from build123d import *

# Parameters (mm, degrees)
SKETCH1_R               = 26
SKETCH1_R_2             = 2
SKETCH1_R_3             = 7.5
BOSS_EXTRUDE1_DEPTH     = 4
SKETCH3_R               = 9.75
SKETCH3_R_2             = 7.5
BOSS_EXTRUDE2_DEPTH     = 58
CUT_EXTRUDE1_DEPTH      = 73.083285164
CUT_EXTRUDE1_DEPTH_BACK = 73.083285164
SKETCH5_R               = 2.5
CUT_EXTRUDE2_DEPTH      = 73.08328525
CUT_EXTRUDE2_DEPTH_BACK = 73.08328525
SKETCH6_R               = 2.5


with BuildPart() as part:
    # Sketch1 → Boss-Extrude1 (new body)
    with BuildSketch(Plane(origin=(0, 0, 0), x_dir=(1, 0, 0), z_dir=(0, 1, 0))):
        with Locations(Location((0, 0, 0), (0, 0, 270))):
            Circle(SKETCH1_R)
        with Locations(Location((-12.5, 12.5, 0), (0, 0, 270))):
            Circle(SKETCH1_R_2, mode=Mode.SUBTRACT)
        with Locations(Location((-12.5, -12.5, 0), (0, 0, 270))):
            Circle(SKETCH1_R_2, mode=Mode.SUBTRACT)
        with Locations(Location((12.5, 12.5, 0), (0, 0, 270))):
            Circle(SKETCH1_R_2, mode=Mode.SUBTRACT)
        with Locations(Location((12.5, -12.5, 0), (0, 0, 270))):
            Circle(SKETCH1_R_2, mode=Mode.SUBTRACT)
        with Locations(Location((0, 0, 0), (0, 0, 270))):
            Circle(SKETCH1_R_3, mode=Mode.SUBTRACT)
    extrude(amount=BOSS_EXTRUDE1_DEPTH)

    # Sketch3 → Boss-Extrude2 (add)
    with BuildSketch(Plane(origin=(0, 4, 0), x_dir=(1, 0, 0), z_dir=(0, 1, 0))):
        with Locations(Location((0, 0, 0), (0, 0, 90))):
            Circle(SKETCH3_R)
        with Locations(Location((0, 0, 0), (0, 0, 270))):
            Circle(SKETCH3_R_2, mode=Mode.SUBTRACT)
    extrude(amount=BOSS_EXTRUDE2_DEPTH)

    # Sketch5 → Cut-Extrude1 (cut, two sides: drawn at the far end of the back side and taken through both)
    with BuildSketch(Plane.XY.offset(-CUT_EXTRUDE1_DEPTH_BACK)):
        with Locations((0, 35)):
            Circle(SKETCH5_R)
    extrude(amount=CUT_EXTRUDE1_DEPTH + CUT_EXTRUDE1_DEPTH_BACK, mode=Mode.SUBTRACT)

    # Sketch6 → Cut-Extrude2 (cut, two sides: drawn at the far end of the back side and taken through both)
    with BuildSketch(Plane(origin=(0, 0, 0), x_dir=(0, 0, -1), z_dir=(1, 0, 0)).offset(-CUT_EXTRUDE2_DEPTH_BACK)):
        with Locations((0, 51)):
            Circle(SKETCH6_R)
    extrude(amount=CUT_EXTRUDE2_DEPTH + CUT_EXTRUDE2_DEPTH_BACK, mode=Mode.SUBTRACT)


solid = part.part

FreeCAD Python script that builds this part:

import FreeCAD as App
import Part
import Sketcher

V = App.Vector

doc = App.newDocument("Part")
body = doc.addObject("PartDesign::Body", "Body")

sketch1 = doc.addObject("Sketcher::SketchObject", "Sketch")
body.addObject(sketch1)
sketch1.AttachmentSupport = (doc.XZ_Plane, [""])
sketch1.MapMode = "FlatFace"
sketch1.addGeometry(Part.Circle(V(0, 0, 0), V(0, 0, 1), 26), False)
sketch1.addGeometry(Part.Circle(V(-12.5, -12.5, 0), V(0, 0, 1), 2), False)
sketch1.addGeometry(Part.Circle(V(-12.5, 12.5, 0), V(0, 0, 1), 2), False)
sketch1.addGeometry(Part.Circle(V(12.5, -12.5, 0), V(0, 0, 1), 2), False)
sketch1.addGeometry(Part.Circle(V(0, 0, 0), V(0, 0, 1), 7.5), False)
sketch1.addGeometry(Part.Circle(V(12.5, 12.5, 0), V(0, 0, 1), 2), False)
sketch1.addConstraint(Sketcher.Constraint("Coincident", 0, 3, -1, 1))
sketch1.addConstraint(Sketcher.Constraint("Coincident", 4, 3, -1, 1))
sketch1.addConstraint(Sketcher.Constraint("Equal", 1, 2))
sketch1.addConstraint(Sketcher.Constraint("Equal", 2, 3))
sketch1.addConstraint(Sketcher.Constraint("Equal", 3, 5))
sketch1.addConstraint(Sketcher.Constraint("Symmetric", 2, 3, 3, 3, -1, 1))
sketch1.addConstraint(Sketcher.Constraint("Symmetric", 1, 3, 5, 3, -1, 1))
sketch1.addConstraint(Sketcher.Constraint("Symmetric", 1, 3, 3, 3, -2))
sketch1.addConstraint(Sketcher.Constraint("Diameter", 0, 52.0))
sketch1.addConstraint(Sketcher.Constraint("Diameter", 1, 4.0))
sketch1.addConstraint(Sketcher.Constraint("Diameter", 4, 15.0))
sketch1.addConstraint(Sketcher.Constraint("DistanceY", 1, 3, 2, 3, 25.0))
sketch1.addConstraint(Sketcher.Constraint("DistanceX", 1, 3, 3, 3, 25.0))
pad1 = doc.addObject("PartDesign::Pad", "Pad")
body.addObject(pad1)
pad1.Profile = sketch1
pad1.Length = 4
pad1.Reversed = True

sketch2 = doc.addObject("Sketcher::SketchObject", "Sketch001")
body.addObject(sketch2)
sketch2.AttachmentSupport = (doc.XZ_Plane, [""])
sketch2.MapMode = "FlatFace"
sketch2.AttachmentOffset = App.Placement(V(0, 0, -4), App.Rotation())
sketch2.addGeometry(Part.Circle(V(0, 0, 0), V(0, 0, 1), 10), False)
sketch2.addGeometry(Part.Circle(V(0, 0, 0), V(0, 0, 1), 8), False)
sketch2.addConstraint(Sketcher.Constraint("Coincident", 0, 3, -1, 1))
sketch2.addConstraint(Sketcher.Constraint("Coincident", 1, 3, -1, 1))
sketch2.addConstraint(Sketcher.Constraint("Diameter", 1, 15.0))
sketch2.addConstraint(Sketcher.Constraint("Diameter", 0, 19.5))
pad2 = doc.addObject("PartDesign::Pad", "Pad001")
body.addObject(pad2)
pad2.Profile = sketch2
pad2.Length = 58
pad2.Reversed = True

sketch3 = doc.addObject("Sketcher::SketchObject", "Sketch002")
body.addObject(sketch3)
sketch3.AttachmentSupport = (doc.XY_Plane, [""])
sketch3.MapMode = "FlatFace"
sketch3.addGeometry(Part.Circle(V(0, 35, 0), V(0, 0, 1), 2.5), False)
sketch3.addConstraint(Sketcher.Constraint("PointOnObject", 0, 3, -2))
sketch3.addConstraint(Sketcher.Constraint("Diameter", 0, 5.0))
sketch3.addConstraint(Sketcher.Constraint("DistanceY", -1, 1, 0, 3, 35.0))
pocket1 = doc.addObject("PartDesign::Pocket", "Pocket")
body.addObject(pocket1)
pocket1.Profile = sketch3
pocket1.Type = "ThroughAll"
pocket1.Midplane = True

sketch4 = doc.addObject("Sketcher::SketchObject", "Sketch003")
body.addObject(sketch4)
sketch4.AttachmentSupport = (doc.YZ_Plane, [""])
sketch4.MapMode = "FlatFace"
sketch4.addGeometry(Part.Circle(V(51, 0, 0), V(0, 0, 1), 2.5), False)
sketch4.addConstraint(Sketcher.Constraint("PointOnObject", 0, 3, -1))
sketch4.addConstraint(Sketcher.Constraint("Diameter", 0, 5.0))
sketch4.addConstraint(Sketcher.Constraint("DistanceX", -1, 1, 0, 3, 51.0))
pocket2 = doc.addObject("PartDesign::Pocket", "Pocket001")
body.addObject(pocket2)
pocket2.Profile = sketch4
pocket2.Type = "ThroughAll"
pocket2.Midplane = True

doc.recompute()
